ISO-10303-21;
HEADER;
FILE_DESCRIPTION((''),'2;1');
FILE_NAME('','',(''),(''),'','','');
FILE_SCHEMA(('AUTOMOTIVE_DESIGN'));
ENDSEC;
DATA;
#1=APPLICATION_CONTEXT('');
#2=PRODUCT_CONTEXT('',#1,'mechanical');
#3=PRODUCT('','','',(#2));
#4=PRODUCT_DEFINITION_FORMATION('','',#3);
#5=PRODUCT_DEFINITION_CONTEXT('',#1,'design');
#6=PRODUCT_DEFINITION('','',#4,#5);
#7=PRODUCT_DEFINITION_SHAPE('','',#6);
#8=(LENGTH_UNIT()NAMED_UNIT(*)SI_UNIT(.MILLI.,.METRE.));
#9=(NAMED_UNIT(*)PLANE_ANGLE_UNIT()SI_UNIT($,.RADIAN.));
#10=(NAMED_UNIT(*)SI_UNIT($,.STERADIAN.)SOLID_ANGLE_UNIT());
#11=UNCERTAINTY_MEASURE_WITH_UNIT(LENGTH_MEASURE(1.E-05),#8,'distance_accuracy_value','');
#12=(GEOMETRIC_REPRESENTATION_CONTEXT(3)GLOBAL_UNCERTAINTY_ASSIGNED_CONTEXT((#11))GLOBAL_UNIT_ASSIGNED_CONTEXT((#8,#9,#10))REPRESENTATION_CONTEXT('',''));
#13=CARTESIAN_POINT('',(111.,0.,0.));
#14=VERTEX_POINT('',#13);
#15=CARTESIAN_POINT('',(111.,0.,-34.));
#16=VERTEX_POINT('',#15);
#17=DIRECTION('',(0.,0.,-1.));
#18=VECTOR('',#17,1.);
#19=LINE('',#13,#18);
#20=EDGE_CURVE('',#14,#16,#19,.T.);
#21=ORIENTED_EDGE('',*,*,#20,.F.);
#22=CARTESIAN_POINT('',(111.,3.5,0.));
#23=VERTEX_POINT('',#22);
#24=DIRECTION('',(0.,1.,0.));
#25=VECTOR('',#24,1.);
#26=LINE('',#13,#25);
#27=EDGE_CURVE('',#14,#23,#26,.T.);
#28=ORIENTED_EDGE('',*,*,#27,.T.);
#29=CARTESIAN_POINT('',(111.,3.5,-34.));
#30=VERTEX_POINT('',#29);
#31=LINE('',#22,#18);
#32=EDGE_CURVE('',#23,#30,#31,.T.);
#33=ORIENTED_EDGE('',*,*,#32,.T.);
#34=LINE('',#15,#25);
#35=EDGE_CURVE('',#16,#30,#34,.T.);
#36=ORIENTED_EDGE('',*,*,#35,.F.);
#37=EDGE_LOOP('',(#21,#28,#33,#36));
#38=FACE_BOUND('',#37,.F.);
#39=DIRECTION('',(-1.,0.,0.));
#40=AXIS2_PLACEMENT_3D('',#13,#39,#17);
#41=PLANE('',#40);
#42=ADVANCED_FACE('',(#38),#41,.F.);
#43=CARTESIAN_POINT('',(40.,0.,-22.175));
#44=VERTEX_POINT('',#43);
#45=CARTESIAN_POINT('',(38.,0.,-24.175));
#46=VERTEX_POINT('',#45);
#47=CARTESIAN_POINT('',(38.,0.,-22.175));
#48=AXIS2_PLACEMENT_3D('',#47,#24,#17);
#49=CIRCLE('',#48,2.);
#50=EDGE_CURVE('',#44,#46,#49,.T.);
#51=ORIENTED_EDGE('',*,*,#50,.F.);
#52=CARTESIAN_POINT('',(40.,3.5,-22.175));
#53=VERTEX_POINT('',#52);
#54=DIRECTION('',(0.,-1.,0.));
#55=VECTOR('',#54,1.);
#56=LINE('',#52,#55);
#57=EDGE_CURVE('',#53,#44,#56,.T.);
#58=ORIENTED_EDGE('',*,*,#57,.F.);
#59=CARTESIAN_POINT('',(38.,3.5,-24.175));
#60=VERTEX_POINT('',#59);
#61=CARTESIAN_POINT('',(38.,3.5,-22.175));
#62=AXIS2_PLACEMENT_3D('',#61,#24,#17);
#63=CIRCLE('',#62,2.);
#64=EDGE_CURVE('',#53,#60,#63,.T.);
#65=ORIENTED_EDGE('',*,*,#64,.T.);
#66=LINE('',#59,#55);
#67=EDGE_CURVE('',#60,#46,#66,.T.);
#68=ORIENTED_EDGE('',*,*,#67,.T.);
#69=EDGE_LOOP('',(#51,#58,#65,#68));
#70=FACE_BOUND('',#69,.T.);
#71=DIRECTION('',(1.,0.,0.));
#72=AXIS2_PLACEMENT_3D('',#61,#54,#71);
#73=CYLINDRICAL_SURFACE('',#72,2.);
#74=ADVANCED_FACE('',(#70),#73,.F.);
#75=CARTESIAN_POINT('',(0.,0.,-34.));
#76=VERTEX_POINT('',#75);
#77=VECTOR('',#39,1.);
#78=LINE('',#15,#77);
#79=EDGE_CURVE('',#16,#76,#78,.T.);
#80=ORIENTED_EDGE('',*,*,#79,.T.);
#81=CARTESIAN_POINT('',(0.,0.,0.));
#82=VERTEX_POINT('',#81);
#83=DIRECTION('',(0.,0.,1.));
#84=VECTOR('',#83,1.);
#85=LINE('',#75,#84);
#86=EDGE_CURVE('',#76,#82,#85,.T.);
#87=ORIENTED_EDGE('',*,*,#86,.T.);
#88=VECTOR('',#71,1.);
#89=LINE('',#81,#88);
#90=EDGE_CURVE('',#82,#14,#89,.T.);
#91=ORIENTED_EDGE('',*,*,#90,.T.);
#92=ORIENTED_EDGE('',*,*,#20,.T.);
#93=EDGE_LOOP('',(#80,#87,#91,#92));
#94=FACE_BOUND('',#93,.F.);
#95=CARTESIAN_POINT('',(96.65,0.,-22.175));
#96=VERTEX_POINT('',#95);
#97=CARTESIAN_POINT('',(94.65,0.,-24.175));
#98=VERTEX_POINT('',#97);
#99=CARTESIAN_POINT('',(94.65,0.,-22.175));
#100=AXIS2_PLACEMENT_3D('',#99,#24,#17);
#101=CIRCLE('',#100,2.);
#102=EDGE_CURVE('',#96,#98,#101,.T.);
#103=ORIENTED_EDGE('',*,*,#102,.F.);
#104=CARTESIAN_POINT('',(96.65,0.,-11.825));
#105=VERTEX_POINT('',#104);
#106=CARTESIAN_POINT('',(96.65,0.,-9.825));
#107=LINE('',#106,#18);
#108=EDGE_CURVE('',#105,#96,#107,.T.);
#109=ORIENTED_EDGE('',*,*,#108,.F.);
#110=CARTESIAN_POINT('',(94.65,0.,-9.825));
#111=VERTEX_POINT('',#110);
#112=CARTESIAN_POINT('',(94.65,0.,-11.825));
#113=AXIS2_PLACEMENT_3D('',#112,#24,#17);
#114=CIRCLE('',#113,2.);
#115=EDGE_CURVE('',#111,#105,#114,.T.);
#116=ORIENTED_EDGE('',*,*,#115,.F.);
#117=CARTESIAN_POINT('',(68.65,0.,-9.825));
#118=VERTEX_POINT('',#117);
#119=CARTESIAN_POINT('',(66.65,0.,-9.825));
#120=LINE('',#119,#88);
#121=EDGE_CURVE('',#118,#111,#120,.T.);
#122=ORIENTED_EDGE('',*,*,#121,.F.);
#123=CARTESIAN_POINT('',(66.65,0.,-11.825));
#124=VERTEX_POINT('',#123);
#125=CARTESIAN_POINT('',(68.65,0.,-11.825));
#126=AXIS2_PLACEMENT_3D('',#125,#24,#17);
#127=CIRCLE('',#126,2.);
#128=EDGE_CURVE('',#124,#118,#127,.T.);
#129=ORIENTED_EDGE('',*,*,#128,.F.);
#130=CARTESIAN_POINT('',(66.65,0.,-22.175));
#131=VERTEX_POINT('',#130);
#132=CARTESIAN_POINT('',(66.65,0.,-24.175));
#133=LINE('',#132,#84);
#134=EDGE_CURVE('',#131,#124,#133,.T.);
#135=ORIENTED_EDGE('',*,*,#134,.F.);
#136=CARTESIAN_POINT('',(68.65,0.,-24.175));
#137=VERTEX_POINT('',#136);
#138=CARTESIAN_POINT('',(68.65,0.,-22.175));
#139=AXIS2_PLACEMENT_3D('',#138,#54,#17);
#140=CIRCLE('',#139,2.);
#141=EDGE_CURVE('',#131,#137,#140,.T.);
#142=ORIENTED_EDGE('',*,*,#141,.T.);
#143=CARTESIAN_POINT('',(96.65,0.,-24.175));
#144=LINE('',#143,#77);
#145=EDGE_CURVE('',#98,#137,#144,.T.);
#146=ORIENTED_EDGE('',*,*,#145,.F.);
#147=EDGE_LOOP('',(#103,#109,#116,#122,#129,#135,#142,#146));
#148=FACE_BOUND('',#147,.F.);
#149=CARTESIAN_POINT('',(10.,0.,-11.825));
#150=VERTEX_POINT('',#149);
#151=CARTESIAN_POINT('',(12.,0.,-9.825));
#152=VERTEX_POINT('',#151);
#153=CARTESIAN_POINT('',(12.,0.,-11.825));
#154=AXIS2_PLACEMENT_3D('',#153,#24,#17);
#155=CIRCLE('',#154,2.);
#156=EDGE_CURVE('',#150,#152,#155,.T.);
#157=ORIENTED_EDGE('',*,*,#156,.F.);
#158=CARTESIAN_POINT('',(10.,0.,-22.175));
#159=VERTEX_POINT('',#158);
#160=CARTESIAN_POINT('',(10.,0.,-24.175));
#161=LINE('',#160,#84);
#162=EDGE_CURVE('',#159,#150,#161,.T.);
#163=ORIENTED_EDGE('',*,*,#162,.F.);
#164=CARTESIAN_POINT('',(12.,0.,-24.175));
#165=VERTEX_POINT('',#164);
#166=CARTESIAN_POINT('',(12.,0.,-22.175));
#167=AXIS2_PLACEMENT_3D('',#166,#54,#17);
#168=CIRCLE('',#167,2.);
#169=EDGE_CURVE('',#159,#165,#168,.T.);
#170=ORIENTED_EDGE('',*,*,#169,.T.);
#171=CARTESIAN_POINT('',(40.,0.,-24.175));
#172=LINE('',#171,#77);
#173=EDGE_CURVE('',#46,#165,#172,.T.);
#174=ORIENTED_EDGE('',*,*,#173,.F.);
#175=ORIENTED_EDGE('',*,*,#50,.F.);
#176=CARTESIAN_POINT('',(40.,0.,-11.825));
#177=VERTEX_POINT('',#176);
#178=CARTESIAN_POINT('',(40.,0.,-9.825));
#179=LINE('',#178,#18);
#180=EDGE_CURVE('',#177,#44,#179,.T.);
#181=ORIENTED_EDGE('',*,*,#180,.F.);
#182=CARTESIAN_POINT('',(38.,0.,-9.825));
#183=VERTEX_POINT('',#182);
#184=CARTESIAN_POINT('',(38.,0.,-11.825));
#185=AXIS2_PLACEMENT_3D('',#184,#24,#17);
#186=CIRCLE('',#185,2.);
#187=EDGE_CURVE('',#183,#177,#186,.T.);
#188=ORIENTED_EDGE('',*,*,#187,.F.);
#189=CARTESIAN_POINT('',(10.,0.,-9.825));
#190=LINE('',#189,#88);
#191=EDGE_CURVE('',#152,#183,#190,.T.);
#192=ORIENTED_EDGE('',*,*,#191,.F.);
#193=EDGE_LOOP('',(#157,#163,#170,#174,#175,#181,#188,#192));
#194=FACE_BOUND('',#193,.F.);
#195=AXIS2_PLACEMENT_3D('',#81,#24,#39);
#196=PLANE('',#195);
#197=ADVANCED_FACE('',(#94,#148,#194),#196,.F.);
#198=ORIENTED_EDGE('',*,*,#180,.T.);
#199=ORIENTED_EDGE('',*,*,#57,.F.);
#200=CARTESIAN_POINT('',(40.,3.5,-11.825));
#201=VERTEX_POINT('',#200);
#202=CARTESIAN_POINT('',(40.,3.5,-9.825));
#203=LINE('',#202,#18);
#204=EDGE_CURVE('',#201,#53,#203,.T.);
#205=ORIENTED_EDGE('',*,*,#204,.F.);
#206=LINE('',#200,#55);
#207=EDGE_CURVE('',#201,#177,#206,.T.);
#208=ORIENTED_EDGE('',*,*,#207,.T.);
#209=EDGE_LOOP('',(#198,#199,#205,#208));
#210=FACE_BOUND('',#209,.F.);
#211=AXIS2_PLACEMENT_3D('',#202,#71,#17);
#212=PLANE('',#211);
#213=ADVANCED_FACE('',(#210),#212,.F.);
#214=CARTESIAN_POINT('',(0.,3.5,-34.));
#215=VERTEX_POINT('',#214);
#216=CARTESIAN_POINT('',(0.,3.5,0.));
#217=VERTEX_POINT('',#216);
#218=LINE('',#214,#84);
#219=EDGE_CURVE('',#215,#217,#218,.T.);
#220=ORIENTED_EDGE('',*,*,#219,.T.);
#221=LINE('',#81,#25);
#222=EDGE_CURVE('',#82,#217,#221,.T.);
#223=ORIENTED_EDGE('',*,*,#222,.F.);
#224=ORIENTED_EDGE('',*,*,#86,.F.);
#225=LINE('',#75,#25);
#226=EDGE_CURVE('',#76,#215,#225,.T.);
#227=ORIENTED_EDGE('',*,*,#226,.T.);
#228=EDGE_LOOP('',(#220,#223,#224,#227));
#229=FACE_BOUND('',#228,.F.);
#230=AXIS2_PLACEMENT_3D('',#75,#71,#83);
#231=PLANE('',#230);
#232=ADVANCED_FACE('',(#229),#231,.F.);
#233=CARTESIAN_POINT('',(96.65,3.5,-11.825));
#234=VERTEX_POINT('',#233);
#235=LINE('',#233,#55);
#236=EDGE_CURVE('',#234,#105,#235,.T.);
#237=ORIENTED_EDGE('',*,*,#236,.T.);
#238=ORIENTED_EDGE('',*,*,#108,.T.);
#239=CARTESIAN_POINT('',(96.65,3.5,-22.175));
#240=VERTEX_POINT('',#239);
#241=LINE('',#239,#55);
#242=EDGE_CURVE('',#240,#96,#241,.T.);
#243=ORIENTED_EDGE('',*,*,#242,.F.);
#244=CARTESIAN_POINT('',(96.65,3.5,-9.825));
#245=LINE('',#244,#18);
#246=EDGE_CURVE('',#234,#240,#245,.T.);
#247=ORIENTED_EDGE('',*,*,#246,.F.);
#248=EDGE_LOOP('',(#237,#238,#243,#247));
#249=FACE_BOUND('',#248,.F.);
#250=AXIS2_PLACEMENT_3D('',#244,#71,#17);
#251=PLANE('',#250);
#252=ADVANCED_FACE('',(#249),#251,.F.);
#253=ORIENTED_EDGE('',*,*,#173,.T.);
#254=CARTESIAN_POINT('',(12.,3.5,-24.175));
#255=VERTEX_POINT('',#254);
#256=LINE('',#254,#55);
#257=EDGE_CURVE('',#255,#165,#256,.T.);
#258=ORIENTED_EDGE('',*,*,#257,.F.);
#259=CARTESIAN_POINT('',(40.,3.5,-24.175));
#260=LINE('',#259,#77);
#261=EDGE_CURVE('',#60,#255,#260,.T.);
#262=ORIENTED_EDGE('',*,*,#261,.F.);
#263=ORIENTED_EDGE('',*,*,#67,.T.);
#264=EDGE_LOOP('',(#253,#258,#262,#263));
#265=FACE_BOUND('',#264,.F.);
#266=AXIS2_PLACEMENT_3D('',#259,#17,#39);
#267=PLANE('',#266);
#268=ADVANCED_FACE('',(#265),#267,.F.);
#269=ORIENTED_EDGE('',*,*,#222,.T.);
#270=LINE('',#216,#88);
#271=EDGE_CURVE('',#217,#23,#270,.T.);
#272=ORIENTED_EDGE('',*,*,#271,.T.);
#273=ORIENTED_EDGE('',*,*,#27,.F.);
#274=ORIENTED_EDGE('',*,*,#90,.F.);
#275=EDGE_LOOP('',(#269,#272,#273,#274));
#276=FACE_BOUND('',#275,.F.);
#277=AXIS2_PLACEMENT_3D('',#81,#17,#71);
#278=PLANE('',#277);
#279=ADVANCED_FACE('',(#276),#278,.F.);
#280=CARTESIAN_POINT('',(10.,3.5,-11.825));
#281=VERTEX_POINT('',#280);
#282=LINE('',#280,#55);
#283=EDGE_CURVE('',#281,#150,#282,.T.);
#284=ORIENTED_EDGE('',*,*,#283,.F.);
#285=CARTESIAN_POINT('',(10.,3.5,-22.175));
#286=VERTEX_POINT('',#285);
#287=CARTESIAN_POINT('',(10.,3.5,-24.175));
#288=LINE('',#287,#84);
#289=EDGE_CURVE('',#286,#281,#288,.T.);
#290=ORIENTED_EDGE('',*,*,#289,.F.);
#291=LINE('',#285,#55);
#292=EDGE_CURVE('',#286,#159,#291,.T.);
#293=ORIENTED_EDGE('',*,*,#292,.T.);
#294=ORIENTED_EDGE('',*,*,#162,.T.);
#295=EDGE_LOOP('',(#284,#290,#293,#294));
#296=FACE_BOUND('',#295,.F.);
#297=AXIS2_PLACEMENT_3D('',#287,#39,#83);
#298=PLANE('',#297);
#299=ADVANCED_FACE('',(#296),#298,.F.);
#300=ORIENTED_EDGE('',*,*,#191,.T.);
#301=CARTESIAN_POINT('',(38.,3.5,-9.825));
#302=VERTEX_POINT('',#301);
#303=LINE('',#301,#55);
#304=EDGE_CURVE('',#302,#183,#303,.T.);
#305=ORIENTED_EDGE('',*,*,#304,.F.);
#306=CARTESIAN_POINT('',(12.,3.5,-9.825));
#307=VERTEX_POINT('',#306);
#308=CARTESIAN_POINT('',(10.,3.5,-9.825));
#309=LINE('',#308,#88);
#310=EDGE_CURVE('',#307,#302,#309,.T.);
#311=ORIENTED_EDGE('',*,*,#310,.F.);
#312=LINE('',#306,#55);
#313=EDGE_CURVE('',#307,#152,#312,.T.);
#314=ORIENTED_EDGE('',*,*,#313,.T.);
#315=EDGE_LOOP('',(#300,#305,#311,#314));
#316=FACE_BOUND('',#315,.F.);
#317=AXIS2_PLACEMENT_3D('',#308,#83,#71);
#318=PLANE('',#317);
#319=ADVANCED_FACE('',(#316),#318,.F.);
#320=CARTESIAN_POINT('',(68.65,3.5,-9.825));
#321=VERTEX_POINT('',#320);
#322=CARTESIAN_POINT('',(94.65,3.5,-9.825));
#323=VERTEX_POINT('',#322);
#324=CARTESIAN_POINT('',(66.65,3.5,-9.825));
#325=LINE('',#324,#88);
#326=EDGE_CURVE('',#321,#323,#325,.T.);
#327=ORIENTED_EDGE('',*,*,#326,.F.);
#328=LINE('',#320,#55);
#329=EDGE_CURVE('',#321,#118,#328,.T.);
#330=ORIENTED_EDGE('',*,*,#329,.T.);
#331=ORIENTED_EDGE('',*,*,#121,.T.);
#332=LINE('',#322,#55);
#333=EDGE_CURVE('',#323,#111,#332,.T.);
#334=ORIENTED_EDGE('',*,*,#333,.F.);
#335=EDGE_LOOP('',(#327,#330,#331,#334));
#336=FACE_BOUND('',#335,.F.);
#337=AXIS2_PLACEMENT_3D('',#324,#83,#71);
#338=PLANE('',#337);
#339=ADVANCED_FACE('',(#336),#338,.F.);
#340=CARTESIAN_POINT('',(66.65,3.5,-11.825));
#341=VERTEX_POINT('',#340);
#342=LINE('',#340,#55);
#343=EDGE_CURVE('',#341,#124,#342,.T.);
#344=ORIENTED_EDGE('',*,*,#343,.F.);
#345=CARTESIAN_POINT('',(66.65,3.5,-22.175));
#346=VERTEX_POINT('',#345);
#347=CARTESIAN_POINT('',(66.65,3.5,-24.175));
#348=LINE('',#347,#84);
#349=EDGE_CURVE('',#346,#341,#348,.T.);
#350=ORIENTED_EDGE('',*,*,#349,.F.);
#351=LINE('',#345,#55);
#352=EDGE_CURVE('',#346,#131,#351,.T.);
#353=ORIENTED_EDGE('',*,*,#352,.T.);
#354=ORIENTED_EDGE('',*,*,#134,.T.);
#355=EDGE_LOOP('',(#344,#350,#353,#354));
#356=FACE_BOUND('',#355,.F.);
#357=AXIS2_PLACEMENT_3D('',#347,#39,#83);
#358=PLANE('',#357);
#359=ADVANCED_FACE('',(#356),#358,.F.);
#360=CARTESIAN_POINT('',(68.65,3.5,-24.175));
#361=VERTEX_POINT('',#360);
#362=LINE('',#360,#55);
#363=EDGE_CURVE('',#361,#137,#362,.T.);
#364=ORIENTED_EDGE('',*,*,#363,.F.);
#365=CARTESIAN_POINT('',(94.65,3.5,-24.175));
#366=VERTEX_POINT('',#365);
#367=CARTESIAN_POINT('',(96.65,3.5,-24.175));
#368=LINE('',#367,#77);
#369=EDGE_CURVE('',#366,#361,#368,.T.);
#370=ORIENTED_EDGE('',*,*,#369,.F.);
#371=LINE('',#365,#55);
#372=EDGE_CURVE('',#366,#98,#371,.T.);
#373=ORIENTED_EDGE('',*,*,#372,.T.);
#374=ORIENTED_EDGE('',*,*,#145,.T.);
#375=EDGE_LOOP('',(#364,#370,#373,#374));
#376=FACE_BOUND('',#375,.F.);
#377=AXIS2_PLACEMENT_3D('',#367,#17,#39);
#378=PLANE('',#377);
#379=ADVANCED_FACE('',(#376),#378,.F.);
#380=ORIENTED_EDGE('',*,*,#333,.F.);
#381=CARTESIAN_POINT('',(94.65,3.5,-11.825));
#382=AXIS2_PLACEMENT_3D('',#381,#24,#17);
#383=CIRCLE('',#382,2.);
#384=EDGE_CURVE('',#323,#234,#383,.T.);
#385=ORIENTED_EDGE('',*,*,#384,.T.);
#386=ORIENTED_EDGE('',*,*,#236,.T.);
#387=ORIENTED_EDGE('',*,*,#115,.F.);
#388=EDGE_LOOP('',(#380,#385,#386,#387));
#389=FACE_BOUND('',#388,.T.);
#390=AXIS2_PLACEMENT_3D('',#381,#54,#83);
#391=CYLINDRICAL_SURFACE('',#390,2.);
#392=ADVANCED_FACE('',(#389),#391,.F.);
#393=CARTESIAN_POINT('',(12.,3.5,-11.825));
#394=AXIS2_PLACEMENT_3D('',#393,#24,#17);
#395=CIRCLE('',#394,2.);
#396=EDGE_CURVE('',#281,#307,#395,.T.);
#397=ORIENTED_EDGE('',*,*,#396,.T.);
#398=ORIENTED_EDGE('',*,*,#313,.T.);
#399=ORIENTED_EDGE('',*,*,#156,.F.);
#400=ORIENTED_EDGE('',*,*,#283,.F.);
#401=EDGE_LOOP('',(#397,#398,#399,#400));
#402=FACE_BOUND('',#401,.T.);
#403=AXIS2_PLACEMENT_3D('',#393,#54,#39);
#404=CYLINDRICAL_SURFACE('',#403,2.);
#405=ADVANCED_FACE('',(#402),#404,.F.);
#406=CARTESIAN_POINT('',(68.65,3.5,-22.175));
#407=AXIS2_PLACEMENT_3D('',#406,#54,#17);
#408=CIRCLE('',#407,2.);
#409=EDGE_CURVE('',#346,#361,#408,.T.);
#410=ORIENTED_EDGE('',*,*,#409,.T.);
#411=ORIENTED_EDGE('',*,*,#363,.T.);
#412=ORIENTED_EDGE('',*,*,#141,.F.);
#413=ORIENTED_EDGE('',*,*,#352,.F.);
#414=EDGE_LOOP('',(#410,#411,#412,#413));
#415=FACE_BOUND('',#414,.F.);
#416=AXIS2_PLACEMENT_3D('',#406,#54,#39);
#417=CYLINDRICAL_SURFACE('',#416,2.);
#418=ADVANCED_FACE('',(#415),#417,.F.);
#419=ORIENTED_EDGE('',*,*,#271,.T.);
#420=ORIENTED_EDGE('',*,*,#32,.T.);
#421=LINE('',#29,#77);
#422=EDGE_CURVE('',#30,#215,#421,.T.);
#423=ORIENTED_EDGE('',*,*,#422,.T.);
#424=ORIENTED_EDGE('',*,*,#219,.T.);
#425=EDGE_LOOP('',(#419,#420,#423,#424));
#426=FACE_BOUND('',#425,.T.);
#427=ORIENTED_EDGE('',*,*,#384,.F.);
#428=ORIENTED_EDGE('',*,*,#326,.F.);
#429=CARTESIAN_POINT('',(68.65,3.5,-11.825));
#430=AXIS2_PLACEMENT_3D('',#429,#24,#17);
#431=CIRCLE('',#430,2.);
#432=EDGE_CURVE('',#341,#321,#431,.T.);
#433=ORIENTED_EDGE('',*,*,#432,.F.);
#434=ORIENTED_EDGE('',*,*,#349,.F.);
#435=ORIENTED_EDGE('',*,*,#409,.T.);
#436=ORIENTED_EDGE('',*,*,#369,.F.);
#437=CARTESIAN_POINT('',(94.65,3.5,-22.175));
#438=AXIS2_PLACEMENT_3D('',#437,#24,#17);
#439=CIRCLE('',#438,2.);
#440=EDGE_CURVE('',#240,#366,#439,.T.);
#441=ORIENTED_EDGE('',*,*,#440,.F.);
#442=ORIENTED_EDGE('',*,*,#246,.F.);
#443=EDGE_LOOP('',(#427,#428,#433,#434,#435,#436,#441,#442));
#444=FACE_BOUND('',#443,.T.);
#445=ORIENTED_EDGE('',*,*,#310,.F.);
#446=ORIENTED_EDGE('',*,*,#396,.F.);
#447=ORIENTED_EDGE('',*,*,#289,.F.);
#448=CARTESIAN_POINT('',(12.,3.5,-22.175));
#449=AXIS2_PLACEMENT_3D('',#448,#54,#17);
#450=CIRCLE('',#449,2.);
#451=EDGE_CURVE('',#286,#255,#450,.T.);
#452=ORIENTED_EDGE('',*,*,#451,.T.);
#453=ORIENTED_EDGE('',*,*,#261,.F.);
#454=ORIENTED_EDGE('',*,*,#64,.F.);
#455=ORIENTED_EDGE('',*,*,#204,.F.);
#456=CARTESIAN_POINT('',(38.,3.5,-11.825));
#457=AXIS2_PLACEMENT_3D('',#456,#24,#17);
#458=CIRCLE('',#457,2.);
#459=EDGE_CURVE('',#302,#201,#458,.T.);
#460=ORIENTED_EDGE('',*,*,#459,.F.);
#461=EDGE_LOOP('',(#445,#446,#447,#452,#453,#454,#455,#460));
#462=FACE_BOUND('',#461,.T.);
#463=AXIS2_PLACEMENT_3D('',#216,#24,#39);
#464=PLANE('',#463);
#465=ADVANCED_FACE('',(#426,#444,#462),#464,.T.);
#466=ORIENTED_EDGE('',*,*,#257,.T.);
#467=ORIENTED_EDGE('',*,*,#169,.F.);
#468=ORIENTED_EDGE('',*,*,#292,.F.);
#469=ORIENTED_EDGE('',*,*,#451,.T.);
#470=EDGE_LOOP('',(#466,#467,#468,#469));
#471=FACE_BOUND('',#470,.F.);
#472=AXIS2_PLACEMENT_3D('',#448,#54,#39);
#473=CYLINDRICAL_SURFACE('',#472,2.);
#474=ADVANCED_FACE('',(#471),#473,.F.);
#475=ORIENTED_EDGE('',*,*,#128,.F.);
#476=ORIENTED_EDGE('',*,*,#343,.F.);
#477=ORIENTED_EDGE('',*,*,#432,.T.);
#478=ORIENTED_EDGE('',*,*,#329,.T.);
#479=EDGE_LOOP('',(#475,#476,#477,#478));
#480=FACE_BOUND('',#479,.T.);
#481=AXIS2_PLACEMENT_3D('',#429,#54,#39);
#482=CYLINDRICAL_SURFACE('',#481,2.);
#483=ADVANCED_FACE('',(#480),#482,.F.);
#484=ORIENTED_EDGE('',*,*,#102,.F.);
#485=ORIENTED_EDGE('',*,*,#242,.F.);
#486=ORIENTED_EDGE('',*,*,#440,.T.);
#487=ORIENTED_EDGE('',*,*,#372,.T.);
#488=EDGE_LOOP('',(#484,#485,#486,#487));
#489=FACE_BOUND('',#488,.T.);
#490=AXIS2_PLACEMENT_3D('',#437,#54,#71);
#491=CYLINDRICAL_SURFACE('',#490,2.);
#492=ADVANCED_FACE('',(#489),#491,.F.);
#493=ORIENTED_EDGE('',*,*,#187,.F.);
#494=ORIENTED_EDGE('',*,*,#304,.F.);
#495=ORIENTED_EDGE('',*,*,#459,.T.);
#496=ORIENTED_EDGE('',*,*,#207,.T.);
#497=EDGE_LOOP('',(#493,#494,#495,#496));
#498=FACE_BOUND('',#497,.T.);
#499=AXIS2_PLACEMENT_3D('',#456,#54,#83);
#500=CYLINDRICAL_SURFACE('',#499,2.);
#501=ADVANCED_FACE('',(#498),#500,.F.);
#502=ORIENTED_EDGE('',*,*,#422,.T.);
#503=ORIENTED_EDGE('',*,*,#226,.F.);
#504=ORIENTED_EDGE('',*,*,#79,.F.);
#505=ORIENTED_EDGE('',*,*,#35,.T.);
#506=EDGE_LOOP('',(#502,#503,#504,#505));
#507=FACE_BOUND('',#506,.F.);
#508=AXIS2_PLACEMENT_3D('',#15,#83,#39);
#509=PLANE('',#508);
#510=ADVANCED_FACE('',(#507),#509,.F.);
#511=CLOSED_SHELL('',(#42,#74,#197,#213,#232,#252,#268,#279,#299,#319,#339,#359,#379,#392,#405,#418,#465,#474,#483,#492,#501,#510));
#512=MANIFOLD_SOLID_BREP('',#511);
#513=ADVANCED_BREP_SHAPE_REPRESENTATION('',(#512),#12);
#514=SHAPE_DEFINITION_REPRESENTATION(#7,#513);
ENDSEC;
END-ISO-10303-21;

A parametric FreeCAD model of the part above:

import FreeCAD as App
import Part
import Sketcher

V = App.Vector


def edges_at(feature, points):
    """Names of the edges that pass closest to the given points."""
    edges = feature.Shape.Edges
    near = lambda p: min(range(len(edges)), key=lambda i: edges[i].distToShape(Part.Vertex(*p))[0])
    return sorted({f"Edge{near(p) + 1}" for p in points})


def add_polygon(sketch, points):
    """Adds a closed chain of lines whose ends are joined by coincident constraints."""
    first, n = sketch.GeometryCount, len(points)
    for a, b in zip(points, points[1:] + points[:1]):
        sketch.addGeometry(Part.LineSegment(App.Vector(*a, 0), App.Vector(*b, 0)), False)
    for i in range(n):
        sketch.addConstraint(Sketcher.Constraint("Coincident", first + i, 2, first + (i + 1) % n, 1))

doc = App.newDocument("Part")
body = doc.addObject("PartDesign::Body", "Body")

# Sketch on XZ plane
sketch1 = body.newObject("Sketcher::SketchObject", "Sketch")
sketch1.AttachmentSupport = (doc.getObject("XZ_Plane"), [""])
sketch1.MapMode = "FlatFace"
add_polygon(sketch1, [(0, -34), (0, 0), (111, 0), (111, -34)])  # lines 0-3
sketch1.addConstraint([
    Sketcher.Constraint("Vertical", 0),
    Sketcher.Constraint("Horizontal", 1),
    Sketcher.Constraint("Vertical", 2),
    Sketcher.Constraint("Horizontal", 3),
    Sketcher.Constraint("Coincident", 0, 2, -1, 1),
    Sketcher.Constraint("DistanceX", 1, 1, 1, 2, 111.0),
    Sketcher.Constraint("DistanceY", 0, 1, 0, 2, 34.0),
])
pad1 = body.newObject("PartDesign::Pad", "Pad")
pad1.Profile = sketch1
pad1.Length = 3.5
pad1.Reversed = True

# Sketch on XZ plane
sketch2 = body.newObject("Sketcher::SketchObject", "Sketch001")
sketch2.AttachmentSupport = (doc.getObject("XZ_Plane"), [""])
sketch2.MapMode = "FlatFace"
sketch2.AttachmentOffset = App.Placement(V(0, 0, -3.5), App.Rotation())
add_polygon(sketch2, [(10, -24), (10, -10), (40, -10), (40, -24)])  # lines 0-3
add_polygon(sketch2, [(67, -24), (67, -10), (97, -10), (97, -24)])  # lines 4-7
sketch2.addConstraint([
    Sketcher.Constraint("Vertical", 0),
    Sketcher.Constraint("Horizontal", 1),
    Sketcher.Constraint("Vertical", 2),
    Sketcher.Constraint("Horizontal", 3),
    Sketcher.Constraint("Vertical", 4),
    Sketcher.Constraint("Horizontal", 5),
    Sketcher.Constraint("Vertical", 6),
    Sketcher.Constraint("Horizontal", 7),
    Sketcher.Constraint("Horizontal", 1, 2, 4, 2),
    Sketcher.Constraint("Horizontal", 3, 2, 6, 2),
    Sketcher.Constraint("Equal", 3, 5),
    Sketcher.Constraint("DistanceX", 1, 1, 1, 2, 30.0),
    Sketcher.Constraint("DistanceY", 0, 1, 0, 2, 14.35),
    Sketcher.Constraint("DistanceX", 1, 2, 4, 2, 26.65),
    Sketcher.Constraint("DistanceX", -1, 1, 0, 2, 10.0),
    Sketcher.Constraint("DistanceY", 0, 2, -1, 1, 9.825),
])
pocket1 = body.newObject("PartDesign::Pocket", "Pocket")
pocket1.Profile = sketch2
pocket1.Length = 3.5
pocket1.Reversed = True
doc.recompute()

fillet = body.newObject("PartDesign::Fillet", "Fillet")
fillet.Base = (pocket1, edges_at(pocket1, [
    (10, 1.75, -24.175),
    (40, 1.75, -24.175),
    (10, 1.75, -9.825),
    (40, 1.75, -9.825),
    (66.65, 1.75, -9.825),
    (66.65, 1.75, -24.175),
    (96.65, 1.75, -9.825),
    (96.65, 1.75, -24.175),
]))
fillet.Radius = 2

doc.recompute()
